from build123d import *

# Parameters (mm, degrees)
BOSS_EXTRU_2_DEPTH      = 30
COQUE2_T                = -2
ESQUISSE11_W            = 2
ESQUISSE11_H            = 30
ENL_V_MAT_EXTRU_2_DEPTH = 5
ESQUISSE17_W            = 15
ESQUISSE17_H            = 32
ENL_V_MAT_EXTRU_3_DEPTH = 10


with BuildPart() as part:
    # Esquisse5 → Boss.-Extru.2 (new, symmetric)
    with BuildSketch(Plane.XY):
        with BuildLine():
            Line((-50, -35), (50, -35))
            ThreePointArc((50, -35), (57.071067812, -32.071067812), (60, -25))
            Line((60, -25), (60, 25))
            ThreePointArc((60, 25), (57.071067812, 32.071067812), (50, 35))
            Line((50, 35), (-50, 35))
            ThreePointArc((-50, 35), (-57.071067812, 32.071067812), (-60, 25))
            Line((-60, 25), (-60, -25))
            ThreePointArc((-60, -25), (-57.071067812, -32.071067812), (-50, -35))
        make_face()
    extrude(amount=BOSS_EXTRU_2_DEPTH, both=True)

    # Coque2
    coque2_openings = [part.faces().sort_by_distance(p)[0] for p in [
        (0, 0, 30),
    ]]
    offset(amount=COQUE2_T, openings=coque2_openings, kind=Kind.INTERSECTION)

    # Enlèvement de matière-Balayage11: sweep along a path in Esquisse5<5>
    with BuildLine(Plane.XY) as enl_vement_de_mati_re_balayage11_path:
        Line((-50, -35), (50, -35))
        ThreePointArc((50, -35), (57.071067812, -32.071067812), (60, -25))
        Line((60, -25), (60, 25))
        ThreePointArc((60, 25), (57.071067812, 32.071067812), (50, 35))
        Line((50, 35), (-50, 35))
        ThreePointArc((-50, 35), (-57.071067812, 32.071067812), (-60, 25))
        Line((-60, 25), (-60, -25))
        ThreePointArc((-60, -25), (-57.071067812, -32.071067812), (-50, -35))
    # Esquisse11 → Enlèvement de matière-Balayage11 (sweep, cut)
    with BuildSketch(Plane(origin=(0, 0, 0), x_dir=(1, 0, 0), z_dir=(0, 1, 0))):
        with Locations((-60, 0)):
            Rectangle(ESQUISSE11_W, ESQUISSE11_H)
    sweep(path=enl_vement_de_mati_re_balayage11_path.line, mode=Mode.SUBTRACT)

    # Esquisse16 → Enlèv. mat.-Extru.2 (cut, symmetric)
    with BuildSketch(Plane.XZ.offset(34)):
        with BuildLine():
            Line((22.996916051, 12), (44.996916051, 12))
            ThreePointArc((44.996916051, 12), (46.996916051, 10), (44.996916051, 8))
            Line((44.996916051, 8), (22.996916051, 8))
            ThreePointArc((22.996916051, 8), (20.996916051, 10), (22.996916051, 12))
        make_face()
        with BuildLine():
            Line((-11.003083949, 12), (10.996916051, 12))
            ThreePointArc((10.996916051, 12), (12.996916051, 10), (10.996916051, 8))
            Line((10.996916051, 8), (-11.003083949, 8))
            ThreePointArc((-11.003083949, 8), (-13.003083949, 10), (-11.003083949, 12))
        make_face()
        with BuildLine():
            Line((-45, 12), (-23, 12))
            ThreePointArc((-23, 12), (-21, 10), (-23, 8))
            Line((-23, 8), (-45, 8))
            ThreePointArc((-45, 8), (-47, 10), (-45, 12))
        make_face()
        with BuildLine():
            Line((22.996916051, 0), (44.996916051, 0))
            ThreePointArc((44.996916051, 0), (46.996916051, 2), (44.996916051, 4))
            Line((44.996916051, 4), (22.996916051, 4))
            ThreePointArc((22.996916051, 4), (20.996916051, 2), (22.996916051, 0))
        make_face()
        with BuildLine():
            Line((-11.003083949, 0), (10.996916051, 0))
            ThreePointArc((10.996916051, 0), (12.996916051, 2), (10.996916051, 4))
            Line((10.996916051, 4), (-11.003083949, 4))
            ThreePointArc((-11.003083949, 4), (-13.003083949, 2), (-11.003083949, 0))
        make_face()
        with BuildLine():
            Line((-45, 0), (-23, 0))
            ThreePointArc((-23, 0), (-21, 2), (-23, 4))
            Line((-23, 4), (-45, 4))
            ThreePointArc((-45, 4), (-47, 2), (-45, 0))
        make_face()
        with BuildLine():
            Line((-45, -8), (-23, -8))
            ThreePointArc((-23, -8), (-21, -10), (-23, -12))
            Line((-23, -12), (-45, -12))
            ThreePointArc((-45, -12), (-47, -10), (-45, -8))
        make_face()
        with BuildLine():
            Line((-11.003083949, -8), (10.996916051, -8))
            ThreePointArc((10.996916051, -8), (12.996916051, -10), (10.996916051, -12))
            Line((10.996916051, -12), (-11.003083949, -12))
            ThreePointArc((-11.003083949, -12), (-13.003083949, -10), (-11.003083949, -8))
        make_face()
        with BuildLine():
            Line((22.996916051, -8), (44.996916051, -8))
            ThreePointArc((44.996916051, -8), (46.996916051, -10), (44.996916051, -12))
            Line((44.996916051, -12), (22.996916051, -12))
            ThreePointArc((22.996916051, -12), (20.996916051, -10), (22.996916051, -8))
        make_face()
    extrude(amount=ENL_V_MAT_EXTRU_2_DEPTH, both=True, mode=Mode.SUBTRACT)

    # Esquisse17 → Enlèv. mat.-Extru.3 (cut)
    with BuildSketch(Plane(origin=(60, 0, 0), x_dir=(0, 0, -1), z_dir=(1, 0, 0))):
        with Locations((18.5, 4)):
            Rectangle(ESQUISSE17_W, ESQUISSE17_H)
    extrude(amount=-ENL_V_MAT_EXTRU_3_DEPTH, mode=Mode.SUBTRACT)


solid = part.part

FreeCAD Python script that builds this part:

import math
import FreeCAD as App
import Part
import Sketcher

V = App.Vector
Q = App.Units.Quantity


def faces_at(feature, points):
    """Names of the faces that lie closest to the given points."""
    faces = feature.Shape.Faces
    near = lambda p: min(range(len(faces)), key=lambda i: faces[i].distToShape(Part.Vertex(*p))[0])
    return sorted({f"Face{near(p) + 1}" for p in points})


def add_polygon(sketch, points):
    """Adds a closed chain of lines whose ends are joined by coincident constraints."""
    first, n = sketch.GeometryCount, len(points)
    for a, b in zip(points, points[1:] + points[:1]):
        sketch.addGeometry(Part.LineSegment(App.Vector(*a, 0), App.Vector(*b, 0)), False)
    for i in range(n):
        sketch.addConstraint(Sketcher.Constraint("Coincident", first + i, 2, first + (i + 1) % n, 1))

doc = App.newDocument("Part")
body = doc.addObject("PartDesign::Body", "Body")

# Sketch on XY plane
sketch1 = doc.addObject("Sketcher::SketchObject", "Sketch")
body.addObject(sketch1)
sketch1.AttachmentSupport = (doc.XY_Plane, [""])
sketch1.MapMode = "FlatFace"
sketch1.addGeometry([
    Part.LineSegment(V(-50, -35, 0), V(50, -35, 0)),  # 0
    Part.ArcOfCircle(Part.Circle(V(50, -25, 0), V(0, 0, 1), 10), math.radians(-90), math.radians(0)),  # 1
    Part.LineSegment(V(60, -25, 0), V(60, 25, 0)),  # 2
    Part.ArcOfCircle(Part.Circle(V(50, 25, 0), V(0, 0, 1), 10), math.radians(0), math.radians(90)),  # 3
    Part.LineSegment(V(50, 35, 0), V(-50, 35, 0)),  # 4
    Part.ArcOfCircle(Part.Circle(V(-50, 25, 0), V(0, 0, 1), 10), math.radians(90), math.radians(180)),  # 5
    Part.LineSegment(V(-60, 25, 0), V(-60, -25, 0)),  # 6
    Part.ArcOfCircle(Part.Circle(V(-50, -25, 0), V(0, 0, 1), 10), math.radians(180), math.radians(270)),  # 7
], False)
sketch1.addConstraint([
    Sketcher.Constraint("Tangent", 0, 2, 1, 1),
    Sketcher.Constraint("Tangent", 1, 2, 2, 1),
    Sketcher.Constraint("Tangent", 2, 2, 3, 1),
    Sketcher.Constraint("Tangent", 3, 2, 4, 1),
    Sketcher.Constraint("Tangent", 4, 2, 5, 1),
    Sketcher.Constraint("Tangent", 5, 2, 6, 1),
    Sketcher.Constraint("Tangent", 6, 2, 7, 1),
    Sketcher.Constraint("Tangent", 7, 2, 0, 1),
    Sketcher.Constraint("Horizontal", 0),
    Sketcher.Constraint("Vertical", 2),
    Sketcher.Constraint("Horizontal", 4),
    Sketcher.Constraint("Vertical", 6),
    Sketcher.Constraint("Equal", 1, 3),
    Sketcher.Constraint("Equal", 3, 5),
    Sketcher.Constraint("Equal", 5, 7),
    Sketcher.Constraint("Symmetric", 1, 3, 5, 3, -1, 1),
    Sketcher.Constraint("Radius", 1, Q("10 mm")),
    Sketcher.Constraint("DistanceX", 0, 1, 0, 2, Q("100 mm")),
    Sketcher.Constraint("DistanceY", 2, 1, 2, 2, Q("50 mm")),
])
pad1 = doc.addObject("PartDesign::Pad", "Pad")
body.addObject(pad1)
pad1.Profile = sketch1
pad1.Length = 60
pad1.Midplane = True
doc.recompute()

thickness = doc.addObject("PartDesign::Thickness", "Thickness")
body.addObject(thickness)
thickness.Base = (pad1, faces_at(pad1, [(0, 0, 30)]))
thickness.Value = 2
thickness.Reversed = True
thickness.Join = "Intersection"

# Sketch on XZ plane
sketch2 = doc.addObject("Sketcher::SketchObject", "Sketch001")
body.addObject(sketch2)
sketch2.AttachmentSupport = (doc.XZ_Plane, [""])
sketch2.MapMode = "FlatFace"
add_polygon(sketch2, [(-61, -15), (-61, 15), (-59, 15), (-59, -15)])  # lines 0-3
sketch2.addConstraint([
    Sketcher.Constraint("Vertical", 0),
    Sketcher.Constraint("Horizontal", 1),
    Sketcher.Constraint("Vertical", 2),
    Sketcher.Constraint("Horizontal", 3),
    Sketcher.Constraint("DistanceX", 1, 1, 1, 2, Q("2 mm")),
    Sketcher.Constraint("DistanceY", 0, 1, 0, 2, Q("30 mm")),
    Sketcher.Constraint("DistanceX", 0, 2, -1, 1, Q("61 mm")),
    Sketcher.Constraint("DistanceY", -1, 1, 0, 2, Q("15 mm")),
])

# Sketch on XY plane
sketch3 = doc.addObject("Sketcher::SketchObject", "Sketch002")
body.addObject(sketch3)
sketch3.AttachmentSupport = (doc.XY_Plane, [""])
sketch3.MapMode = "FlatFace"
sketch3.addGeometry([
    Part.LineSegment(V(-50, -35, 0), V(50, -35, 0)),  # 0
    Part.ArcOfCircle(Part.Circle(V(50, -25, 0), V(0, 0, 1), 10), math.radians(-90), math.radians(0)),  # 1
    Part.LineSegment(V(60, -25, 0), V(60, 25, 0)),  # 2
    Part.ArcOfCircle(Part.Circle(V(50, 25, 0), V(0, 0, 1), 10), math.radians(0), math.radians(90)),  # 3
    Part.LineSegment(V(50, 35, 0), V(-50, 35, 0)),  # 4
    Part.ArcOfCircle(Part.Circle(V(-50, 25, 0), V(0, 0, 1), 10), math.radians(90), math.radians(180)),  # 5
    Part.LineSegment(V(-60, 25, 0), V(-60, -25, 0)),  # 6
    Part.ArcOfCircle(Part.Circle(V(-50, -25, 0), V(0, 0, 1), 10), math.radians(180), math.radians(270)),  # 7
], False)
sketch3.addConstraint([
    Sketcher.Constraint("Tangent", 0, 2, 1, 1),
    Sketcher.Constraint("Tangent", 1, 2, 2, 1),
    Sketcher.Constraint("Tangent", 2, 2, 3, 1),
    Sketcher.Constraint("Tangent", 3, 2, 4, 1),
    Sketcher.Constraint("Tangent", 4, 2, 5, 1),
    Sketcher.Constraint("Tangent", 5, 2, 6, 1),
    Sketcher.Constraint("Tangent", 6, 2, 7, 1),
    Sketcher.Constraint("Tangent", 7, 2, 0, 1),
    Sketcher.Constraint("Horizontal", 0),
    Sketcher.Constraint("Vertical", 2),
    Sketcher.Constraint("Horizontal", 4),
    Sketcher.Constraint("Vertical", 6),
    Sketcher.Constraint("Equal", 1, 3),
    Sketcher.Constraint("Equal", 3, 5),
    Sketcher.Constraint("Equal", 5, 7),
    Sketcher.Constraint("Symmetric", 1, 3, 5, 3, -1, 1),
    Sketcher.Constraint("Radius", 1, Q("10 mm")),
    Sketcher.Constraint("DistanceX", 0, 1, 0, 2, Q("100 mm")),
    Sketcher.Constraint("DistanceY", 2, 1, 2, 2, Q("50 mm")),
])
doc.recompute()

subtractivepipe = doc.addObject("PartDesign::SubtractivePipe", "SubtractivePipe")
body.addObject(subtractivepipe)
subtractivepipe.Profile = sketch2
subtractivepipe.Spine = (sketch3, ["Edge1", "Edge2", "Edge3", "Edge4", "Edge5", "Edge6", "Edge7", "Edge8"])

# Sketch on XZ plane
sketch4 = doc.addObject("Sketcher::SketchObject", "Sketch003")
body.addObject(sketch4)
sketch4.AttachmentSupport = (doc.XZ_Plane, [""])
sketch4.MapMode = "FlatFace"
sketch4.AttachmentOffset = App.Placement(V(0, 0, 34), App.Rotation())
sketch4.addGeometry([
    Part.LineSegment(V(44.996916, 12, 0), V(22.996916, 12, 0)),  # 0
    Part.ArcOfCircle(Part.Circle(V(22.996916, 10, 0), V(0, 0, 1), 2), math.radians(90), math.radians(270)),  # 1
    Part.LineSegment(V(22.996916, 8, 0), V(44.996916, 8, 0)),  # 2
    Part.ArcOfCircle(Part.Circle(V(44.996916, 10, 0), V(0, 0, 1), 2), math.radians(-90), math.radians(90)),  # 3
    Part.LineSegment(V(10.996916, 12, 0), V(-11.003084, 12, 0)),  # 4
    Part.ArcOfCircle(Part.Circle(V(-11.003084, 10, 0), V(0, 0, 1), 2), math.radians(90), math.radians(270)),  # 5
    Part.LineSegment(V(-11.003084, 8, 0), V(10.996916, 8, 0)),  # 6
    Part.ArcOfCircle(Part.Circle(V(10.996916, 10, 0), V(0, 0, 1), 2), math.radians(-90), math.radians(90)),  # 7
    Part.LineSegment(V(-23, 12, 0), V(-45, 12, 0)),  # 8
    Part.ArcOfCircle(Part.Circle(V(-45, 10, 0), V(0, 0, 1), 2), math.radians(90), math.radians(270)),  # 9
    Part.LineSegment(V(-45, 8, 0), V(-23, 8, 0)),  # 10
    Part.ArcOfCircle(Part.Circle(V(-23, 10, 0), V(0, 0, 1), 2), math.radians(-90), math.radians(90)),  # 11
    Part.LineSegment(V(22.996916, 0, 0), V(44.996916, 0, 0)),  # 12
    Part.ArcOfCircle(Part.Circle(V(44.996916, 2, 0), V(0, 0, 1), 2), math.radians(-90), math.radians(90)),  # 13
    Part.LineSegment(V(44.996916, 4, 0), V(22.996916, 4, 0)),  # 14
    Part.ArcOfCircle(Part.Circle(V(22.996916, 2, 0), V(0, 0, 1), 2), math.radians(90), math.radians(270)),  # 15
    Part.LineSegment(V(-11.003084, 0, 0), V(10.996916, 0, 0)),  # 16
    Part.ArcOfCircle(Part.Circle(V(10.996916, 2, 0), V(0, 0, 1), 2), math.radians(-90), math.radians(90)),  # 17
    Part.LineSegment(V(10.996916, 4, 0), V(-11.003084, 4, 0)),  # 18
    Part.ArcOfCircle(Part.Circle(V(-11.003084, 2, 0), V(0, 0, 1), 2), math.radians(90), math.radians(270)),  # 19
    Part.LineSegment(V(-45, 0, 0), V(-23, 0, 0)),  # 20
    Part.ArcOfCircle(Part.Circle(V(-23, 2, 0), V(0, 0, 1), 2), math.radians(-90), math.radians(90)),  # 21
    Part.LineSegment(V(-23, 4, 0), V(-45, 4, 0)),  # 22
    Part.ArcOfCircle(Part.Circle(V(-45, 2, 0), V(0, 0, 1), 2), math.radians(90), math.radians(270)),  # 23
    Part.LineSegment(V(-23, -8, 0), V(-45, -8, 0)),  # 24
    Part.ArcOfCircle(Part.Circle(V(-45, -10, 0), V(0, 0, 1), 2), math.radians(90), math.radians(270)),  # 25
    Part.LineSegment(V(-45, -12, 0), V(-23, -12, 0)),  # 26
    Part.ArcOfCircle(Part.Circle(V(-23, -10, 0), V(0, 0, 1), 2), math.radians(-90), math.radians(90)),  # 27
    Part.LineSegment(V(10.996916, -8, 0), V(-11.003084, -8, 0)),  # 28
    Part.ArcOfCircle(Part.Circle(V(-11.003084, -10, 0), V(0, 0, 1), 2), math.radians(90), math.radians(270)),  # 29
    Part.LineSegment(V(-11.003084, -12, 0), V(10.996916, -12, 0)),  # 30
    Part.ArcOfCircle(Part.Circle(V(10.996916, -10, 0), V(0, 0, 1), 2), math.radians(-90), math.radians(90)),  # 31
    Part.LineSegment(V(44.996916, -8, 0), V(22.996916, -8, 0)),  # 32
    Part.ArcOfCircle(Part.Circle(V(22.996916, -10, 0), V(0, 0, 1), 2), math.radians(90), math.radians(270)),  # 33
    Part.LineSegment(V(22.996916, -12, 0), V(44.996916, -12, 0)),  # 34
    Part.ArcOfCircle(Part.Circle(V(44.996916, -10, 0), V(0, 0, 1), 2), math.radians(-90), math.radians(90)),  # 35
], False)
sketch4.addConstraint([
    Sketcher.Constraint("Tangent", 0, 2, 1, 1),
    Sketcher.Constraint("Tangent", 1, 2, 2, 1),
    Sketcher.Constraint("Tangent", 2, 2, 3, 1),
    Sketcher.Constraint("Tangent", 3, 2, 0, 1),
    Sketcher.Constraint("Tangent", 4, 2, 5, 1),
    Sketcher.Constraint("Tangent", 5, 2, 6, 1),
    Sketcher.Constraint("Tangent", 6, 2, 7, 1),
    Sketcher.Constraint("Tangent", 7, 2, 4, 1),
    Sketcher.Constraint("Tangent", 8, 2, 9, 1),
    Sketcher.Constraint("Tangent", 9, 2, 10, 1),
    Sketcher.Constraint("Tangent", 10, 2, 11, 1),
    Sketcher.Constraint("Tangent", 11, 2, 8, 1),
    Sketcher.Constraint("Tangent", 12, 2, 13, 1),
    Sketcher.Constraint("Tangent", 13, 2, 14, 1),
    Sketcher.Constraint("Tangent", 14, 2, 15, 1),
    Sketcher.Constraint("Tangent", 15, 2, 12, 1),
    Sketcher.Constraint("Tangent", 16, 2, 17, 1),
    Sketcher.Constraint("Tangent", 17, 2, 18, 1),
    Sketcher.Constraint("Tangent", 18, 2, 19, 1),
    Sketcher.Constraint("Tangent", 19, 2, 16, 1),
    Sketcher.Constraint("Tangent", 20, 2, 21, 1),
    Sketcher.Constraint("Tangent", 21, 2, 22, 1),
    Sketcher.Constraint("Tangent", 22, 2, 23, 1),
    Sketcher.Constraint("Tangent", 23, 2, 20, 1),
    Sketcher.Constraint("Tangent", 24, 2, 25, 1),
    Sketcher.Constraint("Tangent", 25, 2, 26, 1),
    Sketcher.Constraint("Tangent", 26, 2, 27, 1),
    Sketcher.Constraint("Tangent", 27, 2, 24, 1),
    Sketcher.Constraint("Tangent", 28, 2, 29, 1),
    Sketcher.Constraint("Tangent", 29, 2, 30, 1),
    Sketcher.Constraint("Tangent", 30, 2, 31, 1),
    Sketcher.Constraint("Tangent", 31, 2, 28, 1),
    Sketcher.Constraint("Tangent", 32, 2, 33, 1),
    Sketcher.Constraint("Tangent", 33, 2, 34, 1),
    Sketcher.Constraint("Tangent", 34, 2, 35, 1),
    Sketcher.Constraint("Tangent", 35, 2, 32, 1),
    Sketcher.Constraint("Horizontal", 0),
    Sketcher.Constraint("Horizontal", 2),
    Sketcher.Constraint("Horizontal", 4),
    Sketcher.Constraint("Horizontal", 6),
    Sketcher.Constraint("Horizontal", 8),
    Sketcher.Constraint("Horizontal", 10),
    Sketcher.Constraint("Horizontal", 12),
    Sketcher.Constraint("Horizontal", 14),
    Sketcher.Constraint("Horizontal", 16),
    Sketcher.Constraint("Horizontal", 18),
    Sketcher.Constraint("Horizontal", 20),
    Sketcher.Constraint("Horizontal", 22),
    Sketcher.Constraint("Horizontal", 24),
    Sketcher.Constraint("Horizontal", 26),
    Sketcher.Constraint("Horizontal", 28),
    Sketcher.Constraint("Horizontal", 30),
    Sketcher.Constraint("Horizontal", 32),
    Sketcher.Constraint("Horizontal", 34),
    Sketcher.Constraint("Equal", 3, 5),
    Sketcher.Constraint("Equal", 7, 9),
    Sketcher.Constraint("Equal", 11, 13),
    Sketcher.Constraint("Equal", 15, 17),
    Sketcher.Constraint("Equal", 19, 21),
    Sketcher.Constraint("Equal", 23, 25),
    Sketcher.Constraint("Equal", 27, 29),
    Sketcher.Constraint("Equal", 31, 33),
    Sketcher.Constraint("Symmetric", 9, 3, 25, 3, -1),
    Sketcher.Constraint("Symmetric", 5, 3, 29, 3, -1),
    Sketcher.Constraint("Symmetric", 1, 3, 33, 3, -1),
    Sketcher.Constraint("PointOnObject", 12, 2, -1),
    Sketcher.Constraint("PointOnObject", 16, 2, -1),
    Sketcher.Constraint("PointOnObject", 20, 2, -1),
    Sketcher.Constraint("Horizontal", 3, 3, 5, 3),
    Sketcher.Constraint("Horizontal", 7, 3, 9, 3),
    Sketcher.Constraint("Vertical", 3, 3, 13, 3),
    Sketcher.Constraint("Vertical", 1, 3, 15, 3),
    Sketcher.Constraint("Vertical", 7, 3, 17, 3),
    Sketcher.Constraint("Vertical", 5, 3, 19, 3),
    Sketcher.Constraint("Vertical", 11, 3, 21, 3),
    Sketcher.Constraint("Vertical", 9, 3, 23, 3),
    Sketcher.Constraint("Vertical", 21, 3, 27, 3),
    Sketcher.Constraint("Vertical", 17, 3, 31, 3),
    Sketcher.Constraint("Vertical", 13, 3, 35, 3),
    Sketcher.Constraint("Equal", 2, 4),
    Sketcher.Constraint("Equal", 6, 8),
    Sketcher.Constraint("Radius", 1, Q("2 mm")),
    Sketcher.Constraint("DistanceX", 0, 2, 0, 1, Q("22 mm")),
    Sketcher.Constraint("DistanceY", -1, 1, 1, 3, Q("10 mm")),
    Sketcher.Constraint("DistanceX", 9, 3, -1, 1, Q("45 mm")),
    Sketcher.Constraint("DistanceX", 5, 3, 1, 3, Q("34 mm")),
    Sketcher.Constraint("DistanceX", -1, 1, 1, 3, Q("22.996916 mm")),
])
pocket1 = doc.addObject("PartDesign::Pocket", "Pocket")
body.addObject(pocket1)
pocket1.Profile = sketch4
pocket1.Length = 10
pocket1.Midplane = True

# Sketch on YZ plane
sketch5 = doc.addObject("Sketcher::SketchObject", "Sketch004")
body.addObject(sketch5)
sketch5.AttachmentSupport = (doc.YZ_Plane, [""])
sketch5.MapMode = "FlatFace"
sketch5.AttachmentOffset = App.Placement(V(0, 0, 60), App.Rotation())
add_polygon(sketch5, [(20, -11), (-12, -11), (-12, -26), (20, -26)])  # lines 0-3
sketch5.addConstraint([
    Sketcher.Constraint("Horizontal", 0),
    Sketcher.Constraint("Vertical", 1),
    Sketcher.Constraint("Horizontal", 2),
    Sketcher.Constraint("Vertical", 3),
    Sketcher.Constraint("DistanceX", 0, 2, 0, 1, Q("32 mm")),
    Sketcher.Constraint("DistanceY", 1, 2, 1, 1, Q("15 mm")),
    Sketcher.Constraint("DistanceX", 0, 2, -1, 1, Q("12 mm")),
    Sketcher.Constraint("DistanceY", 0, 2, -1, 1, Q("11 mm")),
])
pocket2 = doc.addObject("PartDesign::Pocket", "Pocket001")
body.addObject(pocket2)
pocket2.Profile = sketch5
pocket2.Length = 10

doc.recompute()
